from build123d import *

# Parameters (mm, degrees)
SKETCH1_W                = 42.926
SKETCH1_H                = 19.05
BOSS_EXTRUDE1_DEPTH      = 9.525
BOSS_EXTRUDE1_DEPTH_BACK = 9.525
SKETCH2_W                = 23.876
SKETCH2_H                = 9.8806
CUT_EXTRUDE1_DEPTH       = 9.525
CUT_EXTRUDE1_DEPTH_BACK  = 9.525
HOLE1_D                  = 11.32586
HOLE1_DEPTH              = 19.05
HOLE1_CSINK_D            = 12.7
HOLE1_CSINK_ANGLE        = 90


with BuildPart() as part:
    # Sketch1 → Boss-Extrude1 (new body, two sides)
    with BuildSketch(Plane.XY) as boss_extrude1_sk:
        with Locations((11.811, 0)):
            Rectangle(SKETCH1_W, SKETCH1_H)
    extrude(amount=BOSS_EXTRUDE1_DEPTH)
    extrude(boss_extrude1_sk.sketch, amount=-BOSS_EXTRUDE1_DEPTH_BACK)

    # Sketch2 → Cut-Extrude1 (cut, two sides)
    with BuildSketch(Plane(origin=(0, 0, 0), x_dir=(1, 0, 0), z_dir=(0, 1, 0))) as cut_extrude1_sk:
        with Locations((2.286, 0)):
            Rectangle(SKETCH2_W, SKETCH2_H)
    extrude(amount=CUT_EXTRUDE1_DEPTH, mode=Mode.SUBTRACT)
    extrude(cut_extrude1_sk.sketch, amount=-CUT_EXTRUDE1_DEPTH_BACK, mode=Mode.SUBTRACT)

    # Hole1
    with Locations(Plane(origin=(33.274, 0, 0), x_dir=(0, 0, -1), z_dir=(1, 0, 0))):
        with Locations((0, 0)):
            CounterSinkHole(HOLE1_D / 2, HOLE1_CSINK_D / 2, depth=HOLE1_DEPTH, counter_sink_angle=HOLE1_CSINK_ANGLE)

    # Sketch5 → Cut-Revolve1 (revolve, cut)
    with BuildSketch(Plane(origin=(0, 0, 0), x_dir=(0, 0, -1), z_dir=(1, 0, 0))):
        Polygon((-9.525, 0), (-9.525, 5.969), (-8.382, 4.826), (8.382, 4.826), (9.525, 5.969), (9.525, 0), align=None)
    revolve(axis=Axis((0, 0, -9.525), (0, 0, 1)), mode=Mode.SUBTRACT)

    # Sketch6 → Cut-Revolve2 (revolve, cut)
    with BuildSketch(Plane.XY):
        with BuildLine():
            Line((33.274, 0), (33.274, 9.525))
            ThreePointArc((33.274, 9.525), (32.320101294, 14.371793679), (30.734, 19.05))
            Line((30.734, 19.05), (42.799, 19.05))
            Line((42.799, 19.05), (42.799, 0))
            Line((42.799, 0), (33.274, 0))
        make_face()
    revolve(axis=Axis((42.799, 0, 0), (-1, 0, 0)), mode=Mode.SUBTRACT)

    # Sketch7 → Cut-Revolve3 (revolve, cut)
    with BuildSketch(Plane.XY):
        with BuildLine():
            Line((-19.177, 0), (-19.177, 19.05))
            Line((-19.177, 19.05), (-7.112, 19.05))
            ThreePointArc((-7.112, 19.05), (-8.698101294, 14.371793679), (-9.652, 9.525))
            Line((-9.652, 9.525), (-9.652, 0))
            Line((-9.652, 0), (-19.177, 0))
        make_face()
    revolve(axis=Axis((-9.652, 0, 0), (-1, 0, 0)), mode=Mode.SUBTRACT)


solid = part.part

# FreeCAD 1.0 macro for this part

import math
import FreeCAD as App
import Part
import Sketcher
Q = App.Units.Quantity

doc = App.newDocument("Part")
body = doc.addObject("PartDesign::Body", "Body")

sketch1 = body.newObject("Sketcher::SketchObject", "Sketch")
sketch1.AttachmentSupport = (doc.getObject("XY_Plane"), [""])
sketch1.MapMode = "FlatFace"
sketch1.addGeometry([
    Part.LineSegment(App.Vector(-10, 10, 0), App.Vector(-10, -10, 0)),
    Part.LineSegment(App.Vector(-10, -10, 0), App.Vector(33, -10, 0)),
    Part.LineSegment(App.Vector(33, -10, 0), App.Vector(33, 10, 0)),
    Part.LineSegment(App.Vector(33, 10, 0), App.Vector(-10, 10, 0)),
], False)
sketch1.addConstraint([
    Sketcher.Constraint("Coincident", 0, 2, 1, 1),
    Sketcher.Constraint("Coincident", 1, 2, 2, 1),
    Sketcher.Constraint("Coincident", 2, 2, 3, 1),
    Sketcher.Constraint("Coincident", 3, 2, 0, 1),
    Sketcher.Constraint("Vertical", 0),
    Sketcher.Constraint("Horizontal", 1),
    Sketcher.Constraint("Vertical", 2),
    Sketcher.Constraint("Horizontal", 3),
    Sketcher.Constraint("DistanceX", 1, 1, 1, 2, Q("1.69 in")),
    Sketcher.Constraint("DistanceY", 0, 2, 0, 1, Q("0.75 in")),
    Sketcher.Constraint("DistanceX", 0, 2, -1, 1, Q("0.38 in")),
    Sketcher.Constraint("DistanceY", 0, 2, -1, 1, Q("0.375 in")),
])
pad1 = body.newObject("PartDesign::Pad", "Pad")
pad1.Profile = sketch1
pad1.Type = "TwoLengths"
pad1.Length = Q("0.375 in")
pad1.Length2 = Q("0.375 in")

sketch2 = body.newObject("Sketcher::SketchObject", "Sketch001")
sketch2.AttachmentSupport = (doc.getObject("XZ_Plane"), [""])
sketch2.MapMode = "FlatFace"
sketch2.addGeometry([
    Part.LineSegment(App.Vector(-10, -5, 0), App.Vector(-10, 5, 0)),
    Part.LineSegment(App.Vector(-10, 5, 0), App.Vector(14, 5, 0)),
    Part.LineSegment(App.Vector(14, 5, 0), App.Vector(14, -5, 0)),
    Part.LineSegment(App.Vector(14, -5, 0), App.Vector(-10, -5, 0)),
], False)
sketch2.addConstraint([
    Sketcher.Constraint("Coincident", 0, 2, 1, 1),
    Sketcher.Constraint("Coincident", 1, 2, 2, 1),
    Sketcher.Constraint("Coincident", 2, 2, 3, 1),
    Sketcher.Constraint("Coincident", 3, 2, 0, 1),
    Sketcher.Constraint("Vertical", 0),
    Sketcher.Constraint("Horizontal", 1),
    Sketcher.Constraint("Vertical", 2),
    Sketcher.Constraint("Horizontal", 3),
    Sketcher.Constraint("DistanceX", 1, 1, 1, 2, Q("0.94 in")),
    Sketcher.Constraint("DistanceY", 0, 1, 0, 2, Q("0.389 in")),
    Sketcher.Constraint("DistanceX", 0, 2, -1, 1, Q("0.38 in")),
    Sketcher.Constraint("DistanceY", -1, 1, 0, 2, Q("0.1945 in")),
])
pocket1 = body.newObject("PartDesign::Pocket", "Pocket")
pocket1.Profile = sketch2
pocket1.Type = "ThroughAll"
pocket1.Midplane = True

sketch3 = body.newObject("Sketcher::SketchObject", "Sketch002")
sketch3.AttachmentSupport = (doc.getObject("YZ_Plane"), [""])
sketch3.MapMode = "FlatFace"
sketch3.AttachmentOffset = App.Placement(App.Vector(0, 0, 1.31 * 25.4), App.Rotation())
sketch3.addGeometry(Part.Circle(App.Vector(0, 0, 0), App.Vector(0, 0, 1), 6), False)
sketch3.addConstraint([
    Sketcher.Constraint("Coincident", 0, 3, -1, 1),
    Sketcher.Constraint("Diameter", 0, Q("0.4459 in")),
])
doc.recompute()
hole = body.newObject("PartDesign::Hole", "Hole")
hole.Profile = sketch3
hole.ThreadType = "None"
hole.Diameter = Q("0.4459 in")
hole.DepthType = "Dimension"
hole.Depth = Q("0.75 in")
hole.DrillPoint = "Flat"
hole.HoleCutType = "Countersink"
hole.HoleCutDiameter = Q("0.5 in")
hole.HoleCutCountersinkAngle = 90

sketch4 = body.newObject("Sketcher::SketchObject", "Sketch003")
sketch4.AttachmentSupport = (doc.getObject("YZ_Plane"), [""])
sketch4.MapMode = "FlatFace"
sketch4.addGeometry([
    Part.LineSegment(App.Vector(6, 9.5, 0), App.Vector(0, 9.5, 0)),
    Part.LineSegment(App.Vector(0, 9.5, 0), App.Vector(0, -9.5, 0)),
    Part.LineSegment(App.Vector(0, -9.5, 0), App.Vector(6, -9.5, 0)),
    Part.LineSegment(App.Vector(6, -9.5, 0), App.Vector(4.8, -8.4, 0)),
    Part.LineSegment(App.Vector(4.8, -8.4, 0), App.Vector(4.8, 8.4, 0)),
    Part.LineSegment(App.Vector(4.8, 8.4, 0), App.Vector(6, 9.5, 0)),
], False)
sketch4.addConstraint([
    Sketcher.Constraint("Coincident", 0, 2, 1, 1),
    Sketcher.Constraint("Coincident", 1, 2, 2, 1),
    Sketcher.Constraint("Coincident", 2, 2, 3, 1),
    Sketcher.Constraint("Coincident", 3, 2, 4, 1),
    Sketcher.Constraint("Coincident", 4, 2, 5, 1),
    Sketcher.Constraint("Coincident", 5, 2, 0, 1),
    Sketcher.Constraint("Horizontal", 0),
    Sketcher.Constraint("Vertical", 1),
    Sketcher.Constraint("Horizontal", 2),
    Sketcher.Constraint("Vertical", 4),
    Sketcher.Constraint("Symmetric", 0, 2, 1, 2, -1, 1),
    Sketcher.Constraint("Perpendicular", 3, 5),
    Sketcher.Constraint("Vertical", 2, 2, 5, 2),
    Sketcher.Constraint("Equal", 3, 5),
    Sketcher.Constraint("DistanceY", 1, 2, 1, 1, Q("0.75 in")),
    Sketcher.Constraint("DistanceY", 4, 1, 4, 2, Q("0.66 in")),
    Sketcher.Constraint("DistanceX", 0, 2, 0, 1, Q("0.235 in")),
])
groove = body.newObject("PartDesign::Groove", "Groove")
groove.Profile = sketch4
groove.ReferenceAxis = (sketch4, ["V_Axis"])
groove.Angle = 360

sketch5 = body.newObject("Sketcher::SketchObject", "Sketch004")
sketch5.AttachmentSupport = (doc.getObject("XY_Plane"), [""])
sketch5.MapMode = "FlatFace"
sketch5.addGeometry([
    Part.LineSegment(App.Vector(33, 10, 0), App.Vector(33, 0, 0)),
    Part.LineSegment(App.Vector(33, 0, 0), App.Vector(43, 0, 0)),
    Part.LineSegment(App.Vector(43, 0, 0), App.Vector(43, 19, 0)),
    Part.LineSegment(App.Vector(43, 19, 0), App.Vector(31, 19, 0)),
    Part.ArcOfCircle(Part.Circle(App.Vector(-4, 5, 0), App.Vector(0, 0, 1), 37), math.radians(7.34), math.radians(22.53)),
], False)
sketch5.addConstraint([
    Sketcher.Constraint("Coincident", 0, 2, 1, 1),
    Sketcher.Constraint("Coincident", 1, 2, 2, 1),
    Sketcher.Constraint("Coincident", 2, 2, 3, 1),
    Sketcher.Constraint("Coincident", 3, 2, 4, 2),
    Sketcher.Constraint("Coincident", 4, 1, 0, 1),
    Sketcher.Constraint("Vertical", 0),
    Sketcher.Constraint("Horizontal", 1),
    Sketcher.Constraint("Vertical", 2),
    Sketcher.Constraint("Horizontal", 3),
    Sketcher.Constraint("PointOnObject", 0, 2, -1),
    Sketcher.Constraint("Equal", 1, 0),
    Sketcher.Constraint("DistanceY", 2, 1, 2, 2, Q("0.75 in")),
    Sketcher.Constraint("DistanceX", 3, 2, 0, 2, Q("0.1 in")),
    Sketcher.Constraint("DistanceX", 1, 1, 1, 2, Q("0.375 in")),
    Sketcher.Constraint("DistanceX", -1, 1, 0, 2, Q("1.31 in")),
    Sketcher.Constraint("DistanceY", -1, 1, 4, 3, Q("0.1875 in")),
])
groove2 = body.newObject("PartDesign::Groove", "Groove001")
groove2.Profile = sketch5
groove2.ReferenceAxis = (sketch5, ["H_Axis"])
groove2.Angle = 360

sketch6 = body.newObject("Sketcher::SketchObject", "Sketch005")
sketch6.AttachmentSupport = (doc.getObject("XY_Plane"), [""])
sketch6.MapMode = "FlatFace"
sketch6.addGeometry([
    Part.LineSegment(App.Vector(-19, 19, 0), App.Vector(-19, 0, 0)),
    Part.LineSegment(App.Vector(-19, 0, 0), App.Vector(-10, 0, 0)),
    Part.LineSegment(App.Vector(-10, 0, 0), App.Vector(-10, 10, 0)),
    Part.ArcOfCircle(Part.Circle(App.Vector(27, 5, 0), App.Vector(0, 0, 1), 37), math.radians(157.47), math.radians(172.66)),
    Part.LineSegment(App.Vector(-7, 19, 0), App.Vector(-19, 19, 0)),
], False)
sketch6.addConstraint([
    Sketcher.Constraint("Coincident", 0, 2, 1, 1),
    Sketcher.Constraint("Coincident", 1, 2, 2, 1),
    Sketcher.Constraint("Coincident", 2, 2, 3, 2),
    Sketcher.Constraint("Coincident", 3, 1, 4, 1),
    Sketcher.Constraint("Coincident", 4, 2, 0, 1),
    Sketcher.Constraint("Vertical", 0),
    Sketcher.Constraint("Horizontal", 1),
    Sketcher.Constraint("Vertical", 2),
    Sketcher.Constraint("Horizontal", 4),
    Sketcher.Constraint("PointOnObject", 0, 2, -1),
    Sketcher.Constraint("Equal", 1, 2),
    Sketcher.Constraint("DistanceY", 0, 2, 0, 1, Q("0.75 in")),
    Sketcher.Constraint("DistanceX", 2, 2, 3, 1, Q("0.1 in")),
    Sketcher.Constraint("DistanceX", 1, 1, 1, 2, Q("0.375 in")),
    Sketcher.Constraint("DistanceX", 1, 2, -1, 1, Q("0.38 in")),
    Sketcher.Constraint("DistanceY", -1, 1, 3, 3, Q("0.1875 in")),
])
groove3 = body.newObject("PartDesign::Groove", "Groove002")
groove3.Profile = sketch6
groove3.ReferenceAxis = (sketch6, ["H_Axis"])
groove3.Angle = 360

doc.recompute()
